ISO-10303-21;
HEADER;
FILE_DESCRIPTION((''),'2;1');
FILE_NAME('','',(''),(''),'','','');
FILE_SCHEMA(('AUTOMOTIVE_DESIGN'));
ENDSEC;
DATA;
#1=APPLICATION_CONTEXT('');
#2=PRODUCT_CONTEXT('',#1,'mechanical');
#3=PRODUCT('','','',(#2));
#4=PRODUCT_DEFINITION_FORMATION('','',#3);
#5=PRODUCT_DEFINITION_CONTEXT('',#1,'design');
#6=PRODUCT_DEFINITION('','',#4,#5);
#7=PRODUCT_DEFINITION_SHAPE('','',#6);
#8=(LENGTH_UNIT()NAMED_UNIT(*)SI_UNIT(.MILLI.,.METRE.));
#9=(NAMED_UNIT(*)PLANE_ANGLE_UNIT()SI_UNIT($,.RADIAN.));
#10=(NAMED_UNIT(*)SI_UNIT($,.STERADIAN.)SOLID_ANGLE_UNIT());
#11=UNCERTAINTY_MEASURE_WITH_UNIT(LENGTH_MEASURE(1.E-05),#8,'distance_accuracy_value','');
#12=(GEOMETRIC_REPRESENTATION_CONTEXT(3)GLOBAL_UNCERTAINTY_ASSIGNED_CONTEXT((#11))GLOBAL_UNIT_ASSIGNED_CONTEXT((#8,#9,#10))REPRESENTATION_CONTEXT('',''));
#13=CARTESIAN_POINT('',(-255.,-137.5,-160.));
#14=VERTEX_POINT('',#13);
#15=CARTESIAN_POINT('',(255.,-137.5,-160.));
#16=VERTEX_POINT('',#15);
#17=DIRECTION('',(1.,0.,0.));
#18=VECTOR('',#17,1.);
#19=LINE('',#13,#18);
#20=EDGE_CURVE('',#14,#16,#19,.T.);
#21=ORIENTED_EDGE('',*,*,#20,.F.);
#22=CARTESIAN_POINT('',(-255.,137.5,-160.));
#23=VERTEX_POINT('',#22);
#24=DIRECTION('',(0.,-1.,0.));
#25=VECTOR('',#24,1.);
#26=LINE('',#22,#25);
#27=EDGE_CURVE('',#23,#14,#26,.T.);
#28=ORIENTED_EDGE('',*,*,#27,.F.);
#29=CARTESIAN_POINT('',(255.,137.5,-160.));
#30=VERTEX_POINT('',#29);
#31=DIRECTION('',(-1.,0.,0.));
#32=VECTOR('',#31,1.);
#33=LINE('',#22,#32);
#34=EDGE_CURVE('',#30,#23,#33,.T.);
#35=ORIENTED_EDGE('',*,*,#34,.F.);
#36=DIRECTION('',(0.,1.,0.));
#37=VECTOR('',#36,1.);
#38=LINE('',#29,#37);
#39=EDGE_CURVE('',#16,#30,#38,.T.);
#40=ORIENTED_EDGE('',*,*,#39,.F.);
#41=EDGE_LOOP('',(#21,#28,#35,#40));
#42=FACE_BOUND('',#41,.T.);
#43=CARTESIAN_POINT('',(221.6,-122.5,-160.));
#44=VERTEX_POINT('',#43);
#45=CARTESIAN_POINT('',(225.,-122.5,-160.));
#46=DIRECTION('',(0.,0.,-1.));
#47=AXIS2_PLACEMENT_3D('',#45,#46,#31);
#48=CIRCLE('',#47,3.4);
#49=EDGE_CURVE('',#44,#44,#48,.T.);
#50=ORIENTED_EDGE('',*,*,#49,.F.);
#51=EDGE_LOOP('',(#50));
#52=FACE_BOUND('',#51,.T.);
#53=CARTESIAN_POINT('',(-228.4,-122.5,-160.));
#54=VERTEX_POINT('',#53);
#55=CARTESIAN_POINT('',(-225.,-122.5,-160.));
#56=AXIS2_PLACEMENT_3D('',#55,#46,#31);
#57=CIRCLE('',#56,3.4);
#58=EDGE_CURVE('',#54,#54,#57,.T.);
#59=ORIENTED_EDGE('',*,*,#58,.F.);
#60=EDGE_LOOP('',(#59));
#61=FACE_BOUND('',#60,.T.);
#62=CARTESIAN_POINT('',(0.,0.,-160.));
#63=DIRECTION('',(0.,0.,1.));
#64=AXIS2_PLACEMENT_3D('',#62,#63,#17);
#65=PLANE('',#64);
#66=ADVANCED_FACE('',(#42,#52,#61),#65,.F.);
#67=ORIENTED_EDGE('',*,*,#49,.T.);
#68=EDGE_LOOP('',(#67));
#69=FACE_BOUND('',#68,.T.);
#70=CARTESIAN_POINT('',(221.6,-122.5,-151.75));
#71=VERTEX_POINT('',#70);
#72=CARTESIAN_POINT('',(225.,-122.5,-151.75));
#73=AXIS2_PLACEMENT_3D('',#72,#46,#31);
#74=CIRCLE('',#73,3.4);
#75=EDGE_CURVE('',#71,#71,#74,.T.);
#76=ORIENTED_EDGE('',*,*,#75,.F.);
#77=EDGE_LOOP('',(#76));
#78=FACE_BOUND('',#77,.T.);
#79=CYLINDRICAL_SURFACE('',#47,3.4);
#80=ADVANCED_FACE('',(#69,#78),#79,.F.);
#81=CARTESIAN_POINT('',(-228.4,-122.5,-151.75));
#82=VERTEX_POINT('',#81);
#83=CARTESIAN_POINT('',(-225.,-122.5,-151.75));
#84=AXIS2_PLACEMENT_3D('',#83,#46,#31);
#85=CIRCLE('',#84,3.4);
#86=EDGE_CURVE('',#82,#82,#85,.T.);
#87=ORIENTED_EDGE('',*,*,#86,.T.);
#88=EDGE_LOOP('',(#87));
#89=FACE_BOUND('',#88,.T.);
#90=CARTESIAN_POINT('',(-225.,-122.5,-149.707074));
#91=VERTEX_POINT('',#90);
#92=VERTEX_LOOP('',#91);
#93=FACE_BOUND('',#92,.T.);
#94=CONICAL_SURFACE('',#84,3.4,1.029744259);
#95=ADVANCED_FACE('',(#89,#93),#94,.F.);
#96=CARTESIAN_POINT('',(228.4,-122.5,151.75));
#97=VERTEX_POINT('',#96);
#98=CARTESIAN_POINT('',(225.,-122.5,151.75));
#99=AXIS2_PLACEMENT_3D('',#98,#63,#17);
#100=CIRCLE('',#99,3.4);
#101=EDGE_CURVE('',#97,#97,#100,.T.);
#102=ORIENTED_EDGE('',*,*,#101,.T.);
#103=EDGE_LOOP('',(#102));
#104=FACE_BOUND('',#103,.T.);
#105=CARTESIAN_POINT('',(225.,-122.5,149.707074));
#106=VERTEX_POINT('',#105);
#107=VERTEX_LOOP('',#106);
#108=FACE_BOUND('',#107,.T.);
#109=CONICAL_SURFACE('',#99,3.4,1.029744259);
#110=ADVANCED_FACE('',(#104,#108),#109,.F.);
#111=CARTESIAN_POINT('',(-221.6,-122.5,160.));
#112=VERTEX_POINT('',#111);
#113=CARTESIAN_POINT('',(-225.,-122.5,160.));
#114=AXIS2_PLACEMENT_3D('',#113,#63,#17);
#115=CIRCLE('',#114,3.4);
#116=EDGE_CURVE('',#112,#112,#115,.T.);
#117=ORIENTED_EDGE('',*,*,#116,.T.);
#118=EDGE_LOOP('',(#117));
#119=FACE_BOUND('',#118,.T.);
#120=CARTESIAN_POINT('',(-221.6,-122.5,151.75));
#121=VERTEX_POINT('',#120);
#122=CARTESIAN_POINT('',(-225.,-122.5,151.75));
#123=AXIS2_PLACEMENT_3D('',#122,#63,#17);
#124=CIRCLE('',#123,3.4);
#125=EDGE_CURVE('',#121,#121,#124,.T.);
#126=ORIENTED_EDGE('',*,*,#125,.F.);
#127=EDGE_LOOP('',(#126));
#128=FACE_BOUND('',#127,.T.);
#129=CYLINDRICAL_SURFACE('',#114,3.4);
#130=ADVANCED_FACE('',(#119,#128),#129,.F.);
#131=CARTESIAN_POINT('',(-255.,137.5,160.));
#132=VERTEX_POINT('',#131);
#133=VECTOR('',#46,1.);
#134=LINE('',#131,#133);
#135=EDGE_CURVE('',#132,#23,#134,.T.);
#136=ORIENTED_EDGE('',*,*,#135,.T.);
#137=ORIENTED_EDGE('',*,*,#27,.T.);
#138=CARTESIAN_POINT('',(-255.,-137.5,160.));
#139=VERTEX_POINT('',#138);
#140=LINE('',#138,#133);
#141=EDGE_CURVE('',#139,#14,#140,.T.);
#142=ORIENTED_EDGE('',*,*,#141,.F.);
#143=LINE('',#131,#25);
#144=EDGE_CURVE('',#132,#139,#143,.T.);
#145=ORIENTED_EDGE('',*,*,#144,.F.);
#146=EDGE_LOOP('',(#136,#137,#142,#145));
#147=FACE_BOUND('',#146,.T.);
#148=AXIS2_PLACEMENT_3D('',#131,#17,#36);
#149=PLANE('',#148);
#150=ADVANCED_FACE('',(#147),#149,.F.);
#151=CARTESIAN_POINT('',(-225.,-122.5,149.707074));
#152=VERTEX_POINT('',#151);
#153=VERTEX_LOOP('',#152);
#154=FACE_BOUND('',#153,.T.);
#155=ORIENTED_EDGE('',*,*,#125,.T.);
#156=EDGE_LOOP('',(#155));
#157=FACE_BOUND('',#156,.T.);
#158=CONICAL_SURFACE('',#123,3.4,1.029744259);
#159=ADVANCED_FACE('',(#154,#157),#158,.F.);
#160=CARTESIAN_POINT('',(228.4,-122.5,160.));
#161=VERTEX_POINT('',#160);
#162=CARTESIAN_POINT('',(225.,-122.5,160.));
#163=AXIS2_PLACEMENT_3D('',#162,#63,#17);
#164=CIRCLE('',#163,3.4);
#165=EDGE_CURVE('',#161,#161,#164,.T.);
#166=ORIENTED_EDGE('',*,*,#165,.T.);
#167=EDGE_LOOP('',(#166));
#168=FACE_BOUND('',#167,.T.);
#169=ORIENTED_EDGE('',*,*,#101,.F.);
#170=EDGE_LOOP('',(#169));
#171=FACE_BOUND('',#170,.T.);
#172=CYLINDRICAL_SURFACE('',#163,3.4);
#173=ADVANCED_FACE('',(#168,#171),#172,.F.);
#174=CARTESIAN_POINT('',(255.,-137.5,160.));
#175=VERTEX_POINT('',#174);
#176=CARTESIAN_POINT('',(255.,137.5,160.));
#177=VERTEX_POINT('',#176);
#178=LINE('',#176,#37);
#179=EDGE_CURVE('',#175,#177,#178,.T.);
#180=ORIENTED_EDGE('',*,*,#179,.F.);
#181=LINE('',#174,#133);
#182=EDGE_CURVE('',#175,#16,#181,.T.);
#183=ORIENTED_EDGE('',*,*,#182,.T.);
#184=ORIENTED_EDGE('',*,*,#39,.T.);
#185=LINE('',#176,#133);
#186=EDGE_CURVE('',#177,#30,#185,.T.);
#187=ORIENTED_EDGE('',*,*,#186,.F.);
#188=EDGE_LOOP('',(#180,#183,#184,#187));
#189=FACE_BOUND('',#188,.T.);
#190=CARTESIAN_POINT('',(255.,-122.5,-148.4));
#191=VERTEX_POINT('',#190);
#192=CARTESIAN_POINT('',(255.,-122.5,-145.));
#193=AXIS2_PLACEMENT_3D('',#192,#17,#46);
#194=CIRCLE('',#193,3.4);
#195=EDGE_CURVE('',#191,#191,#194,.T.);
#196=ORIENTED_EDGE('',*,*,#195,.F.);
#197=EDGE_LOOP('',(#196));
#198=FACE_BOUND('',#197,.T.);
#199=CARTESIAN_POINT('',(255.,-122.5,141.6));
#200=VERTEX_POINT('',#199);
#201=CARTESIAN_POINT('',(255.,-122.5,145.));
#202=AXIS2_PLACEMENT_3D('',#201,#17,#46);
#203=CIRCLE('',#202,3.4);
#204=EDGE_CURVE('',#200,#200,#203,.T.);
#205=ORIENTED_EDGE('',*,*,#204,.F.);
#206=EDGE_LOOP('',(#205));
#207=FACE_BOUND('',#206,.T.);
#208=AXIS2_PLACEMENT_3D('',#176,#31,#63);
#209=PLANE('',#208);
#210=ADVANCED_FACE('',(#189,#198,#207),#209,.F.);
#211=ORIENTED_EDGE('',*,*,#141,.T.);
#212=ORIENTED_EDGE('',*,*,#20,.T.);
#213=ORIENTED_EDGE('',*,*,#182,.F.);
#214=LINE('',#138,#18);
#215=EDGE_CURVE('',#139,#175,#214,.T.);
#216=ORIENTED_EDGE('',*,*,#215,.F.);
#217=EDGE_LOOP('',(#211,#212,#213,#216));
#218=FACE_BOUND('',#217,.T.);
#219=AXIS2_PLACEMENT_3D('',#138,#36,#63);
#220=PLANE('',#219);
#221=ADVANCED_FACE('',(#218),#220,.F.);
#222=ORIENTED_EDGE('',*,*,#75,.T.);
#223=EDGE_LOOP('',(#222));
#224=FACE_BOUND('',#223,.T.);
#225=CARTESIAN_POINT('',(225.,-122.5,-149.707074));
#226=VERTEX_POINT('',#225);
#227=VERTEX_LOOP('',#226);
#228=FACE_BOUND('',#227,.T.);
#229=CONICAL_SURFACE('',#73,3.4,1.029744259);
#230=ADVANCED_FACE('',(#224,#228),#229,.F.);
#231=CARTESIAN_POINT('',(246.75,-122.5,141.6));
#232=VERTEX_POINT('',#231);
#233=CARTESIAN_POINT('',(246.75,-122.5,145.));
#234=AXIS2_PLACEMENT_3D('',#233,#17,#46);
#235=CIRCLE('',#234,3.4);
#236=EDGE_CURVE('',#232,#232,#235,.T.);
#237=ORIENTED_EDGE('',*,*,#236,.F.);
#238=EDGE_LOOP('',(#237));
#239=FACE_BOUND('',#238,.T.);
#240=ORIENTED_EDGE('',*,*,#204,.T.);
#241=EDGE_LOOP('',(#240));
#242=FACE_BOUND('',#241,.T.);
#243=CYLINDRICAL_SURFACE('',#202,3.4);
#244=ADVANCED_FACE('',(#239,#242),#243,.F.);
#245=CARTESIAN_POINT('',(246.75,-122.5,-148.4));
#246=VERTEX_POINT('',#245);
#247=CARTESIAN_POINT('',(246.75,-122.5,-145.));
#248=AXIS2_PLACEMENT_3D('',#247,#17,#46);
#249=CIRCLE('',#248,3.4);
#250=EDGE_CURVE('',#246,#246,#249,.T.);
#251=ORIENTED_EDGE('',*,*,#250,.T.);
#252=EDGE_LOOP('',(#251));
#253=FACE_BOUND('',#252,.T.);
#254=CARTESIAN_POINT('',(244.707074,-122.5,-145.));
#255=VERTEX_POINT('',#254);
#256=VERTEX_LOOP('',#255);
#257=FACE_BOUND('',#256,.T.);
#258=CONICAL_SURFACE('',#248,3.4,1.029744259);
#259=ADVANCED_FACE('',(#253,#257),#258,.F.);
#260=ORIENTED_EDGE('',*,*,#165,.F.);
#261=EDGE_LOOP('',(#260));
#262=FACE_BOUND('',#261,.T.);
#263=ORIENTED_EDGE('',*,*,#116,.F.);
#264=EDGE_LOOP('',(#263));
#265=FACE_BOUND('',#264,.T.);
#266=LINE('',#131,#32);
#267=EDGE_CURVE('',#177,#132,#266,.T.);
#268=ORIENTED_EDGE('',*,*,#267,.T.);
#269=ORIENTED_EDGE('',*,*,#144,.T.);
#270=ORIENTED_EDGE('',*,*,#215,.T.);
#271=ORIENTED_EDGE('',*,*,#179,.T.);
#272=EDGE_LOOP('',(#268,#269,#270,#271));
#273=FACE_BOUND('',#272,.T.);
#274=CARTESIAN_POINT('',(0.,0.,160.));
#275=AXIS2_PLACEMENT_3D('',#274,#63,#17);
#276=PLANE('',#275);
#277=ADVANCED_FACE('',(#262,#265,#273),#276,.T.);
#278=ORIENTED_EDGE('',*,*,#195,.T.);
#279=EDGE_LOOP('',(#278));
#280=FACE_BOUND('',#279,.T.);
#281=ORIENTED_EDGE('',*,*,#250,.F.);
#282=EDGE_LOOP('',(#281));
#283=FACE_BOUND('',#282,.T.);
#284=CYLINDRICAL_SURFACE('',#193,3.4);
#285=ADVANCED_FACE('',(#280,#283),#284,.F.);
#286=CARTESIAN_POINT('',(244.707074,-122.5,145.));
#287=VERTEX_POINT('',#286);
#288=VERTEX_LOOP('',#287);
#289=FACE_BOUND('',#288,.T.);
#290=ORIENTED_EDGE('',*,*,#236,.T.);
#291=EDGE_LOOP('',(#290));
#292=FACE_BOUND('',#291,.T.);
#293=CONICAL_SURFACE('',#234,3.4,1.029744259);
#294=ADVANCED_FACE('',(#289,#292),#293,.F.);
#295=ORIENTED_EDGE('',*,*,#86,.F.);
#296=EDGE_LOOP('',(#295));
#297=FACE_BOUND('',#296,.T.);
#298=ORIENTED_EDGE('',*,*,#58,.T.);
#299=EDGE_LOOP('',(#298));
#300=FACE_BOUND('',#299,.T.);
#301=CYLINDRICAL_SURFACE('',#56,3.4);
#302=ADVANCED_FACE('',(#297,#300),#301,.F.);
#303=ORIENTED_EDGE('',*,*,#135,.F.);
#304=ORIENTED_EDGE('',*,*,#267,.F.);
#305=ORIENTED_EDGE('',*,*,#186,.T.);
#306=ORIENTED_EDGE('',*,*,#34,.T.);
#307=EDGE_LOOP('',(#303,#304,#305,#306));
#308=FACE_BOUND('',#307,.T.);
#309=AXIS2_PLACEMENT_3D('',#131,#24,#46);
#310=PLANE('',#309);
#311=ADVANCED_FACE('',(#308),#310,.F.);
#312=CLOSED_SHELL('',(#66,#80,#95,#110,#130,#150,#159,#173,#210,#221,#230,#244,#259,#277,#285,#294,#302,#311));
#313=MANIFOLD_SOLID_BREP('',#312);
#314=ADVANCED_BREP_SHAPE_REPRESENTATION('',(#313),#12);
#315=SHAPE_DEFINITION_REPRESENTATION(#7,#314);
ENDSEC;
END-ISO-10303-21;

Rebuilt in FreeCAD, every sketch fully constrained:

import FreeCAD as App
import Part
import Sketcher
from FreeCAD import Vector
Q = App.Units.Quantity


def add_polygon(sketch, points):
    """Adds a closed chain of lines whose ends are joined by coincident constraints."""
    first, n = sketch.GeometryCount, len(points)
    for a, b in zip(points, points[1:] + points[:1]):
        sketch.addGeometry(Part.LineSegment(App.Vector(*a, 0), App.Vector(*b, 0)), False)
    for i in range(n):
        sketch.addConstraint(Sketcher.Constraint("Coincident", first + i, 2, first + (i + 1) % n, 1))

doc = App.newDocument("Part")
body = doc.addObject("PartDesign::Body", "Body")

# Sketch on XY plane
sketch1 = doc.addObject("Sketcher::SketchObject", "Sketch")
body.addObject(sketch1)
sketch1.AttachmentSupport = (doc.XY_Plane, [""])
sketch1.MapMode = "FlatFace"
add_polygon(sketch1, [(-255, 138), (-255, -138), (255, -138), (255, 138)])  # lines 0-3
sketch1.addConstraint([
    Sketcher.Constraint("Vertical", 0),
    Sketcher.Constraint("Horizontal", 1),
    Sketcher.Constraint("Vertical", 2),
    Sketcher.Constraint("Horizontal", 3),
    Sketcher.Constraint("Symmetric", 0, 2, 2, 2, -1, 1),
    Sketcher.Constraint("DistanceX", 1, 1, 1, 2, Q("510 mm")),
    Sketcher.Constraint("DistanceY", 0, 2, 0, 1, Q("275 mm")),
])
pad1 = doc.addObject("PartDesign::Pad", "Pad")
body.addObject(pad1)
pad1.Profile = sketch1
pad1.Length = 320
pad1.Midplane = True

# Sketch on YZ plane
sketch2 = doc.addObject("Sketcher::SketchObject", "Sketch001")
body.addObject(sketch2)
sketch2.AttachmentSupport = (doc.YZ_Plane, [""])
sketch2.MapMode = "FlatFace"
sketch2.AttachmentOffset = App.Placement(Vector(0, 0, 225), App.Rotation())
add_polygon(sketch2, [(-122.5, 149.7), (-122.5, 160), (-125.9, 160), (-125.9, 151.8)])  # lines 0-3
sketch2.addGeometry(Part.LineSegment(Vector(-122.5, 160, 0), Vector(-122.5, 149.7, 0)), True)  # axis
sketch2.addConstraint([
    Sketcher.Constraint("Vertical", 0),
    Sketcher.Constraint("Horizontal", 1),
    Sketcher.Constraint("Vertical", 2),
    Sketcher.Constraint("Vertical", 4),
    Sketcher.Constraint("Coincident", 4, 1, 0, 2),
    Sketcher.Constraint("Equal", 0, 4),
    Sketcher.Constraint("Angle", 3, Q("-31 deg")),
    Sketcher.Constraint("DistanceX", 1, 2, 1, 1, Q("3.4 mm")),
    Sketcher.Constraint("DistanceY", -1, 1, 0, 2, Q("160 mm")),
    Sketcher.Constraint("DistanceY", 2, 2, 2, 1, Q("8.25 mm")),
    Sketcher.Constraint("DistanceX", 0, 2, -1, 1, Q("122.5 mm")),
])
groove = doc.addObject("PartDesign::Groove", "Groove")
body.addObject(groove)
groove.Profile = sketch2
groove.ReferenceAxis = (sketch2, ["Axis0"])
groove.Angle = 360
doc.recompute()

linearpattern = doc.addObject("PartDesign::LinearPattern", "LinearPattern")
body.addObject(linearpattern)
linearpattern.Originals = [groove]
linearpattern.Direction = (doc.X_Axis, [""])
linearpattern.Mode = "offset"
linearpattern.Offset = 450
linearpattern.Occurrences = 2
linearpattern.Reversed = True
body.Tip = linearpattern

# Sketch on YZ plane
sketch3 = doc.addObject("Sketcher::SketchObject", "Sketch002")
body.addObject(sketch3)
sketch3.AttachmentSupport = (doc.YZ_Plane, [""])
sketch3.MapMode = "FlatFace"
sketch3.AttachmentOffset = App.Placement(Vector(0, 0, 255), App.Rotation())
sketch3.addGeometry([
    Part.Circle(Vector(-122.5, 145, 0), Vector(0, 0, 1), 3.4),
    Part.Circle(Vector(-122.5, -145, 0), Vector(0, 0, 1), 3.4),
], False)
sketch3.addConstraint([
    Sketcher.Constraint("Equal", 0, 1),
    Sketcher.Constraint("Symmetric", 0, 3, 1, 3, -1),
    Sketcher.Constraint("Diameter", 0, Q("6.8 mm")),
    Sketcher.Constraint("DistanceY", -1, 1, 0, 3, Q("145 mm")),
    Sketcher.Constraint("DistanceX", 0, 3, -1, 1, Q("122.5 mm")),
])
doc.recompute()
hole = doc.addObject("PartDesign::Hole", "Hole")
body.addObject(hole)
hole.Profile = sketch3
hole.ThreadType = "None"
hole.Diameter = 6.8
hole.DepthType = "Dimension"
hole.Depth = 8.25
hole.DrillPoint = "Angled"
hole.DrillPointAngle = 118
doc.recompute()

mirrored = doc.addObject("PartDesign::Mirrored", "Mirrored")
body.addObject(mirrored)
mirrored.Originals = [groove]
mirrored.MirrorPlane = (doc.XY_Plane, [""])
body.Tip = mirrored

# Sketch on YZ plane
sketch4 = doc.addObject("Sketcher::SketchObject", "Sketch003")
body.addObject(sketch4)
sketch4.AttachmentSupport = (doc.YZ_Plane, [""])
sketch4.MapMode = "FlatFace"
sketch4.AttachmentOffset = App.Placement(Vector(0, 0, -225), App.Rotation())
add_polygon(sketch4, [(-122.5, -160), (-122.5, -149.7), (-125.9, -151.8), (-125.9, -160)])  # lines 0-3
sketch4.addGeometry(Part.LineSegment(Vector(-122.5, -149.7, 0), Vector(-122.5, -160, 0)), True)  # axis
sketch4.addConstraint([
    Sketcher.Constraint("Vertical", 0),
    Sketcher.Constraint("Vertical", 2),
    Sketcher.Constraint("Horizontal", 3),
    Sketcher.Constraint("Vertical", 4),
    Sketcher.Constraint("Coincident", 4, 1, 0, 2),
    Sketcher.Constraint("Horizontal", 2, 2, 4, 2),
    Sketcher.Constraint("Angle", 1, Q("-149 deg")),
    Sketcher.Constraint("DistanceX", 3, 1, 3, 2, Q("3.4 mm")),
    Sketcher.Constraint("DistanceY", 2, 2, -1, 1, Q("160 mm")),
    Sketcher.Constraint("DistanceY", 2, 2, 2, 1, Q("8.25 mm")),
    Sketcher.Constraint("DistanceX", 0, 2, -1, 1, Q("122.5 mm")),
])
groove2 = doc.addObject("PartDesign::Groove", "Groove001")
body.addObject(groove2)
groove2.Profile = sketch4
groove2.ReferenceAxis = (sketch4, ["Axis0"])
groove2.Angle = 360

doc.recompute()
